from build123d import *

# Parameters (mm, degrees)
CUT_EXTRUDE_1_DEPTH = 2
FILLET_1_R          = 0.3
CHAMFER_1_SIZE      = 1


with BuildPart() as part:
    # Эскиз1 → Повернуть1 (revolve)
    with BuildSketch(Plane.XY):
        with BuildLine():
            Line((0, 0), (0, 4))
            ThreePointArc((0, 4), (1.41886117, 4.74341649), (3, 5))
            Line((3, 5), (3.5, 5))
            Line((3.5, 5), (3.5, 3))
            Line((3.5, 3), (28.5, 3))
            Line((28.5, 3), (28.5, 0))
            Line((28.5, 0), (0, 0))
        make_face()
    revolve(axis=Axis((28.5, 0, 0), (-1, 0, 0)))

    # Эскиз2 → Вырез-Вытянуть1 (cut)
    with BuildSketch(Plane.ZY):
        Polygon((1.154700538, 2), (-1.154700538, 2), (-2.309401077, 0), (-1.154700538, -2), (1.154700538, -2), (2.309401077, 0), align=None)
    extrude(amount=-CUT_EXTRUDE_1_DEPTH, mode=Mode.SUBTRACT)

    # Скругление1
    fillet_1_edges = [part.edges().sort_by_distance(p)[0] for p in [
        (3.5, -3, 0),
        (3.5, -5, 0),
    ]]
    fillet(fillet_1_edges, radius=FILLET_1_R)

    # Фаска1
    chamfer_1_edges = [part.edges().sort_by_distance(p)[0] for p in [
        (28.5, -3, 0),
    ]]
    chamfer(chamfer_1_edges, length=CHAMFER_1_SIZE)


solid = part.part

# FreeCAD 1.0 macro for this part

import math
import FreeCAD as App
import Part
import Sketcher

V = App.Vector
Q = App.Units.Quantity


def edges_at(feature, points):
    """Names of the edges that pass closest to the given points."""
    edges = feature.Shape.Edges
    near = lambda p: min(range(len(edges)), key=lambda i: edges[i].distToShape(Part.Vertex(*p))[0])
    return sorted({f"Edge{near(p) + 1}" for p in points})

doc = App.newDocument("Part")
body = doc.addObject("PartDesign::Body", "Body")

# Sketch on XY plane
sketch1 = body.newObject("Sketcher::SketchObject", "Sketch")
sketch1.AttachmentSupport = (doc.getObject("XY_Plane"), [""])
sketch1.MapMode = "FlatFace"
sketch1.addGeometry(Part.LineSegment(V(0, 4, 0), V(0, 0, 0)), False)
sketch1.addGeometry(Part.LineSegment(V(0, 0, 0), V(28.5, 0, 0)), False)
sketch1.addGeometry(Part.LineSegment(V(28.5, 0, 0), V(28.5, 3, 0)), False)
sketch1.addGeometry(Part.LineSegment(V(28.5, 3, 0), V(3.5, 3, 0)), False)
sketch1.addGeometry(Part.LineSegment(V(3.5, 3, 0), V(3.5, 5, 0)), False)
sketch1.addGeometry(Part.LineSegment(V(3.5, 5, 0), V(3, 5, 0)), False)
sketch1.addGeometry(Part.ArcOfCircle(Part.Circle(V(3, 0, 0), V(0, 0, 1), 5), math.radians(90), math.radians(126.869898)), False)
sketch1.addConstraint(Sketcher.Constraint("Coincident", 0, 2, 1, 1))
sketch1.addConstraint(Sketcher.Constraint("Coincident", 1, 2, 2, 1))
sketch1.addConstraint(Sketcher.Constraint("Coincident", 2, 2, 3, 1))
sketch1.addConstraint(Sketcher.Constraint("Coincident", 3, 2, 4, 1))
sketch1.addConstraint(Sketcher.Constraint("Coincident", 4, 2, 5, 1))
sketch1.addConstraint(Sketcher.Constraint("Tangent", 5, 2, 6, 1))
sketch1.addConstraint(Sketcher.Constraint("Coincident", 6, 2, 0, 1))
sketch1.addConstraint(Sketcher.Constraint("Vertical", 0))
sketch1.addConstraint(Sketcher.Constraint("Horizontal", 1))
sketch1.addConstraint(Sketcher.Constraint("Vertical", 2))
sketch1.addConstraint(Sketcher.Constraint("Horizontal", 3))
sketch1.addConstraint(Sketcher.Constraint("Vertical", 4))
sketch1.addConstraint(Sketcher.Constraint("Horizontal", 5))
sketch1.addConstraint(Sketcher.Constraint("Coincident", 0, 2, -1, 1))
sketch1.addConstraint(Sketcher.Constraint("PointOnObject", 6, 3, -1))
sketch1.addConstraint(Sketcher.Constraint("Radius", 6, Q("5 mm")))
sketch1.addConstraint(Sketcher.Constraint("DistanceX", 3, 2, 3, 1, Q("25 mm")))
sketch1.addConstraint(Sketcher.Constraint("DistanceY", 0, 2, 0, 1, Q("4 mm")))
sketch1.addConstraint(Sketcher.Constraint("DistanceY", 2, 1, 2, 2, Q("3 mm")))
sketch1.addConstraint(Sketcher.Constraint("DistanceX", 1, 1, 1, 2, Q("28.5 mm")))
revolution = body.newObject("PartDesign::Revolution", "Revolution")
revolution.Profile = sketch1
revolution.ReferenceAxis = (sketch1, ["H_Axis"])
revolution.Angle = 360

# Sketch on YZ plane
sketch2 = body.newObject("Sketcher::SketchObject", "Sketch001")
sketch2.AttachmentSupport = (doc.getObject("YZ_Plane"), [""])
sketch2.MapMode = "FlatFace"
sketch2.addGeometry(Part.LineSegment(V(2, 1.154701, 0), V(2, -1.154701, 0)), False)
sketch2.addGeometry(Part.LineSegment(V(2, -1.154701, 0), V(0, -2.309401, 0)), False)
sketch2.addGeometry(Part.LineSegment(V(0, -2.309401, 0), V(-2, -1.154701, 0)), False)
sketch2.addGeometry(Part.LineSegment(V(-2, -1.154701, 0), V(-2, 1.154701, 0)), False)
sketch2.addGeometry(Part.LineSegment(V(-2, 1.154701, 0), V(0, 2.309401, 0)), False)
sketch2.addGeometry(Part.LineSegment(V(0, 2.309401, 0), V(2, 1.154701, 0)), False)
sketch2.addConstraint(Sketcher.Constraint("Coincident", 0, 2, 1, 1))
sketch2.addConstraint(Sketcher.Constraint("Coincident", 1, 2, 2, 1))
sketch2.addConstraint(Sketcher.Constraint("Coincident", 2, 2, 3, 1))
sketch2.addConstraint(Sketcher.Constraint("Coincident", 3, 2, 4, 1))
sketch2.addConstraint(Sketcher.Constraint("Coincident", 4, 2, 5, 1))
sketch2.addConstraint(Sketcher.Constraint("Coincident", 5, 2, 0, 1))
sketch2.addConstraint(Sketcher.Constraint("Vertical", 0))
sketch2.addConstraint(Sketcher.Constraint("Vertical", 3))
sketch2.addConstraint(Sketcher.Constraint("Symmetric", 0, 2, 3, 2, -1, 1))
sketch2.addConstraint(Sketcher.Constraint("Symmetric", 1, 2, 4, 2, -1, 1))
sketch2.addConstraint(Sketcher.Constraint("PointOnObject", 1, 2, -2))
sketch2.addConstraint(Sketcher.Constraint("Parallel", 2, 5))
sketch2.addConstraint(Sketcher.Constraint("Horizontal", 0, 2, 2, 2))
sketch2.addConstraint(Sketcher.Constraint("Angle", 1, Q("-150 deg")))
sketch2.addConstraint(Sketcher.Constraint("DistanceX", -1, 1, 0, 2, Q("2 mm")))
sketch2.addConstraint(Sketcher.Constraint("DistanceY", 0, 2, 0, 1, Q("2.309401 mm")))
pocket1 = body.newObject("PartDesign::Pocket", "Pocket")
pocket1.Profile = sketch2
pocket1.Length = 2
pocket1.Reversed = True
doc.recompute()

fillet = body.newObject("PartDesign::Fillet", "Fillet")
fillet.Base = (pocket1, edges_at(pocket1, [(3.5, -3, 0), (3.5, -5, 0)]))
fillet.Radius = 0.3
doc.recompute()

chamfer = body.newObject("PartDesign::Chamfer", "Chamfer")
chamfer.Base = (fillet, edges_at(fillet, [(28.5, -3, 0)]))
chamfer.Size = 1

doc.recompute()
